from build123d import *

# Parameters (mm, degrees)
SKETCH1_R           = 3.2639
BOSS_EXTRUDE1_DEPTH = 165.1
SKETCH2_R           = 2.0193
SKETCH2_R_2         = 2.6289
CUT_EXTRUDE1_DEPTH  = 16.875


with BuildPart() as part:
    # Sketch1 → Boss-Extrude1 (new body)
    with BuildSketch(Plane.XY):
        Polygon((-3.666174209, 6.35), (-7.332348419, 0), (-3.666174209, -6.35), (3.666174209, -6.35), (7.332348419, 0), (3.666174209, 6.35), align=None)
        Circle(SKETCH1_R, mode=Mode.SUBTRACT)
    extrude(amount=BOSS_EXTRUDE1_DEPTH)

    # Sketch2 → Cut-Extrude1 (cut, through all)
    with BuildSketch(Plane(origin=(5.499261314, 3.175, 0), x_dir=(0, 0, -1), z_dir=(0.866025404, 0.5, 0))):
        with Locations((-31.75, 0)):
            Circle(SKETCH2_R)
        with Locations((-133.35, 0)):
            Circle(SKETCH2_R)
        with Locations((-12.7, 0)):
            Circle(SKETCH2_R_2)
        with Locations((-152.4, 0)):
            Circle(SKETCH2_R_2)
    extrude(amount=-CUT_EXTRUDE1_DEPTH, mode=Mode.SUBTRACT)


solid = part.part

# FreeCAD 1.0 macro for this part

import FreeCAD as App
import Part
import Sketcher
from FreeCAD import Vector
Q = App.Units.Quantity

doc = App.newDocument("Part")
body = doc.addObject("PartDesign::Body", "Body")

# Sketch on XY plane
sketch1 = body.newObject("Sketcher::SketchObject", "Sketch")
sketch1.AttachmentSupport = (doc.getObject("XY_Plane"), [""])
sketch1.MapMode = "FlatFace"
sketch1.addGeometry([
    Part.LineSegment(Vector(-3.7, 6.3, 0), Vector(-7.3, 0, 0)),  # 0
    Part.LineSegment(Vector(-7.3, 0, 0), Vector(-3.7, -6.3, 0)),  # 1
    Part.LineSegment(Vector(-3.7, -6.3, 0), Vector(3.7, -6.3, 0)),  # 2
    Part.LineSegment(Vector(3.7, -6.3, 0), Vector(7.3, 0, 0)),  # 3
    Part.LineSegment(Vector(7.3, 0, 0), Vector(3.7, 6.3, 0)),  # 4
    Part.LineSegment(Vector(3.7, 6.3, 0), Vector(-3.7, 6.3, 0)),  # 5
    Part.Circle(Vector(0, 0, 0), Vector(0, 0, 1), 3.3),  # 6
], False)
sketch1.addConstraint([
    Sketcher.Constraint("Coincident", 0, 2, 1, 1),
    Sketcher.Constraint("Coincident", 1, 2, 2, 1),
    Sketcher.Constraint("Coincident", 2, 2, 3, 1),
    Sketcher.Constraint("Coincident", 3, 2, 4, 1),
    Sketcher.Constraint("Coincident", 4, 2, 5, 1),
    Sketcher.Constraint("Coincident", 5, 2, 0, 1),
    Sketcher.Constraint("Horizontal", 2),
    Sketcher.Constraint("Horizontal", 5),
    Sketcher.Constraint("Coincident", 6, 3, -1, 1),
    Sketcher.Constraint("Symmetric", 0, 2, 3, 2, -1, 1),
    Sketcher.Constraint("Symmetric", 1, 2, 4, 2, -1, 1),
    Sketcher.Constraint("PointOnObject", 0, 2, -1),
    Sketcher.Constraint("Parallel", 0, 3),
    Sketcher.Constraint("Vertical", 2, 2, 4, 2),
    Sketcher.Constraint("Diameter", 6, Q("0.257 in")),
    Sketcher.Constraint("Angle", 0, Q("-120 deg")),
    Sketcher.Constraint("DistanceY", 2, 2, 4, 2, Q("0.5 in")),
    Sketcher.Constraint("DistanceX", 2, 1, 2, 2, 7.332348),
])
pad1 = body.newObject("PartDesign::Pad", "Pad")
pad1.Profile = sketch1
pad1.Length = Q("6.5 in")

# Sketch on an angled plane
sketch2 = body.newObject("Sketcher::SketchObject", "Sketch001")
sketch2.Placement = App.Placement(Vector(5.499261, 3.175, 0), App.Rotation(Vector(0, 0, -1), Vector(-0.5, 0.866025404, 0), Vector(0.866025404, 0.5, 0), "ZXY"))
sketch2.addGeometry([
    Part.Circle(Vector(-31.8, 0, 0), Vector(0, 0, 1), 2),
    Part.Circle(Vector(-133.3, 0, 0), Vector(0, 0, 1), 2),
    Part.Circle(Vector(-12.7, 0, 0), Vector(0, 0, 1), 2.6),
    Part.Circle(Vector(-152.4, 0, 0), Vector(0, 0, 1), 2.6),
], False)
sketch2.addConstraint([
    Sketcher.Constraint("Equal", 0, 1),
    Sketcher.Constraint("Equal", 2, 3),
    Sketcher.Constraint("PointOnObject", 0, 3, -1),
    Sketcher.Constraint("PointOnObject", 1, 3, -1),
    Sketcher.Constraint("PointOnObject", 2, 3, -1),
    Sketcher.Constraint("PointOnObject", 3, 3, -1),
    Sketcher.Constraint("Diameter", 0, Q("0.159 in")),
    Sketcher.Constraint("Diameter", 2, Q("0.207 in")),
    Sketcher.Constraint("DistanceX", 3, 3, -1, 1, Q("6 in")),
    Sketcher.Constraint("DistanceX", 1, 3, 0, 3, Q("4 in")),
    Sketcher.Constraint("DistanceX", 2, 3, -1, 1, Q("0.5 in")),
    Sketcher.Constraint("DistanceX", 0, 3, -1, 1, Q("1.25 in")),
])
pocket1 = body.newObject("PartDesign::Pocket", "Pocket")
pocket1.Profile = sketch2
pocket1.Type = "ThroughAll"

doc.recompute()
